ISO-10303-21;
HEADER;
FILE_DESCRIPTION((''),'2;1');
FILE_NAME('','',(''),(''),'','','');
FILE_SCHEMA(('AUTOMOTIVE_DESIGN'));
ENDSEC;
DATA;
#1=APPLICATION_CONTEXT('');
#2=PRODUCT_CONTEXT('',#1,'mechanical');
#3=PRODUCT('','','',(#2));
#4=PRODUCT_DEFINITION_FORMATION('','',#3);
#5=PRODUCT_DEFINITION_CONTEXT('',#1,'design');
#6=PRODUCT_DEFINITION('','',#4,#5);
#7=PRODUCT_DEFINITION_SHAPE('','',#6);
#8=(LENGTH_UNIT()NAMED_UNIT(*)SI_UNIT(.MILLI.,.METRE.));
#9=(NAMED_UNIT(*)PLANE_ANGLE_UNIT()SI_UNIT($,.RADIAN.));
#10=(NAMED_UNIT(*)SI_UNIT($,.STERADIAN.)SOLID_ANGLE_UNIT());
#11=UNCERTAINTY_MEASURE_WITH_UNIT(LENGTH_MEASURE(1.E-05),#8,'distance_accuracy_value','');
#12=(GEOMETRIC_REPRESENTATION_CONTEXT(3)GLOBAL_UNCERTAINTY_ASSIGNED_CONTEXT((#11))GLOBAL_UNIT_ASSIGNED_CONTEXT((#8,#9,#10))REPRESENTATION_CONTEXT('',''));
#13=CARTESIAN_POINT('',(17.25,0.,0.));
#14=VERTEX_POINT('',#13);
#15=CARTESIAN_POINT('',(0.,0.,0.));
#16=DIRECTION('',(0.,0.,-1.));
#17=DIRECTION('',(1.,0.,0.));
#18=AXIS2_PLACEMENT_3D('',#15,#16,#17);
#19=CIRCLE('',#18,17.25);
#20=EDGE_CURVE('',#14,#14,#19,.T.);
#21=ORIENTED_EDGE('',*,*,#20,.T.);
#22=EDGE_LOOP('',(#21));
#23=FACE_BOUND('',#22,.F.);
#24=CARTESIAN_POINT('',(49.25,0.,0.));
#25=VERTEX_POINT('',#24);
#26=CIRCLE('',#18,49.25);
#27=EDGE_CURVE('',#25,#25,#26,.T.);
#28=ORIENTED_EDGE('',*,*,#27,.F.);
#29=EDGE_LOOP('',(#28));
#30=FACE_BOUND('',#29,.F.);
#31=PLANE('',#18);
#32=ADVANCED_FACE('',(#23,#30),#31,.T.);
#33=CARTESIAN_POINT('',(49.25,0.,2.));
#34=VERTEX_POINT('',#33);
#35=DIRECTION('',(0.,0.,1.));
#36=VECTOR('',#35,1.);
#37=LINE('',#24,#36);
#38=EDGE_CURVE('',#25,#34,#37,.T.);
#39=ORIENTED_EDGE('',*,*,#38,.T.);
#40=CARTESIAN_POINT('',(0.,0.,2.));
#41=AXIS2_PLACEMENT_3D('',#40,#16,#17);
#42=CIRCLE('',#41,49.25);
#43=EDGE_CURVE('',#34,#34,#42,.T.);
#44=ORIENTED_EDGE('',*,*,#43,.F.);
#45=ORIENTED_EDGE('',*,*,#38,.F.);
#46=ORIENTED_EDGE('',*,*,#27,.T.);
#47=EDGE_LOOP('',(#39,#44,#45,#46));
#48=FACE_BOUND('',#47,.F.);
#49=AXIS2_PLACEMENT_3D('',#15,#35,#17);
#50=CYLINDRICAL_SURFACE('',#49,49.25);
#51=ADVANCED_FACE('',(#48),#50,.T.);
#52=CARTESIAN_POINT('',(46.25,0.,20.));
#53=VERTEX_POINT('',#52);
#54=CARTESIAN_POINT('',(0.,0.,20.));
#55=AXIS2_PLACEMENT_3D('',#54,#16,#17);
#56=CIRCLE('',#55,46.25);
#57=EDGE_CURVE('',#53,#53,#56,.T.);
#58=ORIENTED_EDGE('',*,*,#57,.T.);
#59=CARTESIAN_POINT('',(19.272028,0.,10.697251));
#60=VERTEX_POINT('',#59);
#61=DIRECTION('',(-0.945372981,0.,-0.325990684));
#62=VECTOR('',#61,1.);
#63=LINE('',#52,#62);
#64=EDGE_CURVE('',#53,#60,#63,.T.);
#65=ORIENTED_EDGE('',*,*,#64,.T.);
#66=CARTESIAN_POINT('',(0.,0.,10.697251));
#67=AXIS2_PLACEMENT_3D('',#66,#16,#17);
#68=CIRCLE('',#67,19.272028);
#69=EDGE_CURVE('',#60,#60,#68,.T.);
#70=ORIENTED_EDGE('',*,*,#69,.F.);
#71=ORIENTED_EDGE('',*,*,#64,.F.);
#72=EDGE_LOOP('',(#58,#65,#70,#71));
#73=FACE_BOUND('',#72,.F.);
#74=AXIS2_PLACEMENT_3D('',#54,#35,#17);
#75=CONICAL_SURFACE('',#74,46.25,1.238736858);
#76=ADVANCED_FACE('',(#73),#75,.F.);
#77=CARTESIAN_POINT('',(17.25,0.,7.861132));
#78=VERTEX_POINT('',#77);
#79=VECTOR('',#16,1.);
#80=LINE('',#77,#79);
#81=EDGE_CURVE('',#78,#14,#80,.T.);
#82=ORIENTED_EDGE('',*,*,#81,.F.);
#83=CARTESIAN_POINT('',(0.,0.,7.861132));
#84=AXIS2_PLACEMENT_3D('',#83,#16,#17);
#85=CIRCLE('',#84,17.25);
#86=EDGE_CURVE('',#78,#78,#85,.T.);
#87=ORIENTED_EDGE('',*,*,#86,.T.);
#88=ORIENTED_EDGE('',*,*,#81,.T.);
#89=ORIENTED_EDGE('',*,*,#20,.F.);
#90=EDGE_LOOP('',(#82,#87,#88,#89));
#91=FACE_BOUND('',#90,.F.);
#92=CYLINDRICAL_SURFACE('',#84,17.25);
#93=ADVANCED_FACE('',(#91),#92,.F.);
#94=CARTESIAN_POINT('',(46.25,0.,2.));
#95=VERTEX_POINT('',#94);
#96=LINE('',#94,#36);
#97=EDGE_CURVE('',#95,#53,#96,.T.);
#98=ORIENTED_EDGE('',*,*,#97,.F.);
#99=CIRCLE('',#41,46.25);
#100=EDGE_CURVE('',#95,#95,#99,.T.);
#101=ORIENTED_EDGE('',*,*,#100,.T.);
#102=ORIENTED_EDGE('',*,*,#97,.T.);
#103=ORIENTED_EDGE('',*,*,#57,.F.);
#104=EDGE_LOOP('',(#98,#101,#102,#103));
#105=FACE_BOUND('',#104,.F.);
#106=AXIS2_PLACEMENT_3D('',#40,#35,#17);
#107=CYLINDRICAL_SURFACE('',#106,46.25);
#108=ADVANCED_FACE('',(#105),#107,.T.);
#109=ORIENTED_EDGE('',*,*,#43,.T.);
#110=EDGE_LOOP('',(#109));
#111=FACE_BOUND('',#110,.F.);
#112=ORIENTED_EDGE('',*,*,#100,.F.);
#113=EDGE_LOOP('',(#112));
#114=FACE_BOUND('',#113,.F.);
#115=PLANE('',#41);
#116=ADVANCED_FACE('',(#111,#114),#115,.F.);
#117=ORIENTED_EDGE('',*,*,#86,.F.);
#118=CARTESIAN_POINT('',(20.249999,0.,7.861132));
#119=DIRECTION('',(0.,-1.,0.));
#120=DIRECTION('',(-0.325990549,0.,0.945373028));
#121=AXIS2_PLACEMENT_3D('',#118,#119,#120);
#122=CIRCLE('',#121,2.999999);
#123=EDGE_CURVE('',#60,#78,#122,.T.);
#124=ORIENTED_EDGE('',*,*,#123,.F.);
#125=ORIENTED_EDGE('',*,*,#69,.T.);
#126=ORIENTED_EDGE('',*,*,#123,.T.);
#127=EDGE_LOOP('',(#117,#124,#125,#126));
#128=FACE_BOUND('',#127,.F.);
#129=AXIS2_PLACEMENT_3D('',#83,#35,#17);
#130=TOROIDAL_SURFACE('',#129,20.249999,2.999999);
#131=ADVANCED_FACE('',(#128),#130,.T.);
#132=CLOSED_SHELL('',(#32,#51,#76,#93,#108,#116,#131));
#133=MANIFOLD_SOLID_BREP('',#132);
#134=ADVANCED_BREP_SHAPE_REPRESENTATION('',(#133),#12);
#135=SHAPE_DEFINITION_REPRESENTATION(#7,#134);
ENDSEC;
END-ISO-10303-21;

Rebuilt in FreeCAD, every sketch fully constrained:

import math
import FreeCAD as App
import Part
import Sketcher
from FreeCAD import Vector

doc = App.newDocument("Part")
params = doc.addObject("Spreadsheet::Sheet", "Params")
for row, (alias, value) in enumerate([
    ("sketch1_radius", "2.999999 mm"),
    ("sketch1_width", "32 mm"),
    ("sketch1_width2", "3 mm"),
    ("sketch1_height", "2 mm"),
    ("sketch1_height2", "18 mm"),
    ("revolution_angle", "360 deg"),
], start=1):
    params.set(f"A{row}", alias)
    params.set(f"B{row}", "=" + value)
    params.setAlias(f"B{row}", alias)

body = doc.addObject("PartDesign::Body", "Body")

# Sketch on XZ plane
sketch1 = body.newObject("Sketcher::SketchObject", "Sketch")
sketch1.AttachmentSupport = (doc.getObject("XZ_Plane"), [""])
sketch1.MapMode = "FlatFace"
sketch1.addGeometry([
    Part.LineSegment(Vector(17.2, 7.9, 0), Vector(17.2, 0, 0)),  # 0
    Part.LineSegment(Vector(17.2, 0, 0), Vector(49.2, 0, 0)),  # 1
    Part.LineSegment(Vector(49.2, 0, 0), Vector(49.2, 2, 0)),  # 2
    Part.LineSegment(Vector(49.2, 2, 0), Vector(46.2, 2, 0)),  # 3
    Part.LineSegment(Vector(46.2, 2, 0), Vector(46.2, 20, 0)),  # 4
    Part.LineSegment(Vector(46.2, 20, 0), Vector(19.3, 10.7, 0)),  # 5
    Part.ArcOfCircle(Part.Circle(Vector(20.2, 7.9, 0), Vector(0, 0, 1), 3), math.radians(109), math.radians(180)),  # 6
], False)
sketch1.addConstraint([
    Sketcher.Constraint("Coincident", 0, 2, 1, 1),
    Sketcher.Constraint("Coincident", 1, 2, 2, 1),
    Sketcher.Constraint("Coincident", 2, 2, 3, 1),
    Sketcher.Constraint("Coincident", 3, 2, 4, 1),
    Sketcher.Constraint("Coincident", 4, 2, 5, 1),
    Sketcher.Constraint("Tangent", 5, 2, 6, 1),
    Sketcher.Constraint("Tangent", 6, 2, 0, 1),
    Sketcher.Constraint("Vertical", 0),
    Sketcher.Constraint("Horizontal", 1),
    Sketcher.Constraint("Vertical", 2),
    Sketcher.Constraint("Horizontal", 3),
    Sketcher.Constraint("Vertical", 4),
    Sketcher.Constraint("PointOnObject", 0, 2, -1),
    Sketcher.Constraint("Radius", 6, 2.999999),
    Sketcher.Constraint("DistanceX", 1, 1, 1, 2, 32.0),
    Sketcher.Constraint("DistanceX", 3, 2, 3, 1, 3.0),
    Sketcher.Constraint("DistanceY", 2, 1, 2, 2, 2.0),
    Sketcher.Constraint("DistanceY", 4, 1, 4, 2, 18.0),
    Sketcher.Constraint("DistanceX", -1, 1, 6, 3, 20.249999),
    Sketcher.Constraint("DistanceY", 0, 2, 0, 1, 7.861132),
])
sketch1.setExpression("Constraints[13]", "Params.sketch1_radius")
sketch1.setExpression("Constraints[14]", "Params.sketch1_width")
sketch1.setExpression("Constraints[15]", "Params.sketch1_width2")
sketch1.setExpression("Constraints[16]", "Params.sketch1_height")
sketch1.setExpression("Constraints[17]", "Params.sketch1_height2")
revolution = body.newObject("PartDesign::Revolution", "Revolution")
revolution.Profile = sketch1
revolution.ReferenceAxis = (sketch1, ["V_Axis"])
revolution.setExpression("Angle", "Params.revolution_angle")

doc.recompute()
